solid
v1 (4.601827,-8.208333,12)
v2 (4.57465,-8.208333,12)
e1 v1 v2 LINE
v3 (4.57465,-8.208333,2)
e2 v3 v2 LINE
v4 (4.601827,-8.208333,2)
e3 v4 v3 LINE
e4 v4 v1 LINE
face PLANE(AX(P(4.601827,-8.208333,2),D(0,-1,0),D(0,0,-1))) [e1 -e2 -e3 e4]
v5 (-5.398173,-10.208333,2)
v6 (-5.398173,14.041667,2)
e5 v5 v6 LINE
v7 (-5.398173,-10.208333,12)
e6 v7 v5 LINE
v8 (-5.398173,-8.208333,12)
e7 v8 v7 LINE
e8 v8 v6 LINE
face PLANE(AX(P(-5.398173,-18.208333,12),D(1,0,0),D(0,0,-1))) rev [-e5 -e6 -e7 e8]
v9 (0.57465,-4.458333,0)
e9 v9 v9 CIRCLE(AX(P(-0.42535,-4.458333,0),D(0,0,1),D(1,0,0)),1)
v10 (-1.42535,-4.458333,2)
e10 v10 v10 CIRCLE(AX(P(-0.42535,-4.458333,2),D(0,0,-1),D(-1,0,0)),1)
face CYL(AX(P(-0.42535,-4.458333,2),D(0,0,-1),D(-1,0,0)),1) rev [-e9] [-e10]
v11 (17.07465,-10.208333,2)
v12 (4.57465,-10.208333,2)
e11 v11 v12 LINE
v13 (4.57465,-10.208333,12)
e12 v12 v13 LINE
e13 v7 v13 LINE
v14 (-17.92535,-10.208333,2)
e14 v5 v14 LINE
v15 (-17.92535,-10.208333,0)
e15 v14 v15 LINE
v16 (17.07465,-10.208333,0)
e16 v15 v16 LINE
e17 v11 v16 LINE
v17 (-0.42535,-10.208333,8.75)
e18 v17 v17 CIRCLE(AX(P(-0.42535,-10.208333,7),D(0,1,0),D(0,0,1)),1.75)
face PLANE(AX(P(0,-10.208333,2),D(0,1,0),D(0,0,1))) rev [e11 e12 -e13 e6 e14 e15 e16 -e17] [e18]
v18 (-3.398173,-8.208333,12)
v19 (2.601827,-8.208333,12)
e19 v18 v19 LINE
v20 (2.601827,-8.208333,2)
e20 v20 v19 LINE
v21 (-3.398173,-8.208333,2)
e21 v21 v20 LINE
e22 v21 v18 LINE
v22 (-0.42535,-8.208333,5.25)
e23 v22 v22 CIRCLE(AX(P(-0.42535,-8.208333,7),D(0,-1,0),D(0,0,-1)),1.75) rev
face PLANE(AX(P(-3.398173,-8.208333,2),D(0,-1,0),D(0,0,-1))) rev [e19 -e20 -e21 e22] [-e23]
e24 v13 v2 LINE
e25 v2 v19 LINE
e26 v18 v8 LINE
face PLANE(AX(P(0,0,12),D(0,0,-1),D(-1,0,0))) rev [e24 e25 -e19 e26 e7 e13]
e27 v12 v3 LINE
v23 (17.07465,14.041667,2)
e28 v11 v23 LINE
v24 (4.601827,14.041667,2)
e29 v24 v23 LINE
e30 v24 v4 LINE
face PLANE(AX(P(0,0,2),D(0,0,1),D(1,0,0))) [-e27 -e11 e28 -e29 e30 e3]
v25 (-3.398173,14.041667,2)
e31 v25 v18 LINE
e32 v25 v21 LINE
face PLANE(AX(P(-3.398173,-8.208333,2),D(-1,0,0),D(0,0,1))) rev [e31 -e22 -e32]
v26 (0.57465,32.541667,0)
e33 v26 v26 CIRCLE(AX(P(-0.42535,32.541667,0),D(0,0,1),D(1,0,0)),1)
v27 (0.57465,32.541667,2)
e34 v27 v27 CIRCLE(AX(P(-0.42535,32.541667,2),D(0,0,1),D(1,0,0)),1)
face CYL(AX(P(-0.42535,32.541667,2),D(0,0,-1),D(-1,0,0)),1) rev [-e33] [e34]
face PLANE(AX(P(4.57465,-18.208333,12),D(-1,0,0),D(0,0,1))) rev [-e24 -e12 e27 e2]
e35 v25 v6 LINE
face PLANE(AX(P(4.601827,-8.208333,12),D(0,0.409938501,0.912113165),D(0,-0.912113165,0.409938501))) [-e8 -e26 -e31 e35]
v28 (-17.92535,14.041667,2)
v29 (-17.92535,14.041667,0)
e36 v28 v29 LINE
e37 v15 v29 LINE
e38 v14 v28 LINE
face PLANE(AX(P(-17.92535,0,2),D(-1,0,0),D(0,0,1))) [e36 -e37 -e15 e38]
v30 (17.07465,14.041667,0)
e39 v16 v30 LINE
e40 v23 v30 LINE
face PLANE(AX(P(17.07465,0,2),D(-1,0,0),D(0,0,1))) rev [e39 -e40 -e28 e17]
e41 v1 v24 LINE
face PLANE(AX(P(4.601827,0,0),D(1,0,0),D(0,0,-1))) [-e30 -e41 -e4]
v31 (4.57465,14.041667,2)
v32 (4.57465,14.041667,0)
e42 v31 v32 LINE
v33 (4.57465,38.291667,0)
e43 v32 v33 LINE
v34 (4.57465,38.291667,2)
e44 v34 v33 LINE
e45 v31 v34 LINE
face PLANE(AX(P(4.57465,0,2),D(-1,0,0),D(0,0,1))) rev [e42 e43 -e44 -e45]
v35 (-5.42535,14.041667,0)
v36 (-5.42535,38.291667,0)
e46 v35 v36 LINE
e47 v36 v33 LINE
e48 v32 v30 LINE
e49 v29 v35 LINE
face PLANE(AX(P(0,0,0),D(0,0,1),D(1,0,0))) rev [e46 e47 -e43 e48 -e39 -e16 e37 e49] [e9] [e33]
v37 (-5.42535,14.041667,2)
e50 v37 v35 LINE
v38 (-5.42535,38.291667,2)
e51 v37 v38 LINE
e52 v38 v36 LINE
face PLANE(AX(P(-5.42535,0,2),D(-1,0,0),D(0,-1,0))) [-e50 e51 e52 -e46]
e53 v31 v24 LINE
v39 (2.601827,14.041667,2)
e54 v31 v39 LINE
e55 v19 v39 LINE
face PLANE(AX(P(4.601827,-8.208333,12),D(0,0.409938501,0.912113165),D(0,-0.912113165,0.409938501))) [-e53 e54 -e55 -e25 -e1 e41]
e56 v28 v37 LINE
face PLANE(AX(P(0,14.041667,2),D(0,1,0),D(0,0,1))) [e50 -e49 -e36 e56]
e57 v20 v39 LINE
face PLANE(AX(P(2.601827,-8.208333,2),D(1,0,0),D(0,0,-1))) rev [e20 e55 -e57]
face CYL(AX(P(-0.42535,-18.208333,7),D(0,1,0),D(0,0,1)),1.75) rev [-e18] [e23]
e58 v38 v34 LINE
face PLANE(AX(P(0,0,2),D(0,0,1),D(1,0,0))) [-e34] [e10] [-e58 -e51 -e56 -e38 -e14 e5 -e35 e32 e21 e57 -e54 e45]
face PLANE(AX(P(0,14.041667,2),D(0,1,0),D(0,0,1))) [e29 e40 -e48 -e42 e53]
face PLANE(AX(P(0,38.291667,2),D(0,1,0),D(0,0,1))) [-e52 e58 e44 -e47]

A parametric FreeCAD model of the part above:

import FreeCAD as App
import Part
import Sketcher

V = App.Vector
Q = App.Units.Quantity


def add_polygon(sketch, points):
    """Adds a closed chain of lines whose ends are joined by coincident constraints."""
    first, n = sketch.GeometryCount, len(points)
    for a, b in zip(points, points[1:] + points[:1]):
        sketch.addGeometry(Part.LineSegment(App.Vector(*a, 0), App.Vector(*b, 0)), False)
    for i in range(n):
        sketch.addConstraint(Sketcher.Constraint("Coincident", first + i, 2, first + (i + 1) % n, 1))

doc = App.newDocument("Part")
body = doc.addObject("PartDesign::Body", "Body")

# Sketch on XY plane
sketch1 = body.newObject("Sketcher::SketchObject", "Sketch")
sketch1.AttachmentSupport = (doc.getObject("XY_Plane"), [""])
sketch1.MapMode = "FlatFace"
add_polygon(sketch1, [(-5.42535, 14.041667), (-17.92535, 14.041667), (-17.92535, -10.208333), (17.07465, -10.208333), (17.07465, 14.041667), (4.57465, 14.041667), (4.57465, 38.291667), (-5.42535, 38.291667)])  # lines 0-7
sketch1.addGeometry(Part.Circle(V(-0.42535, -4.458333, 0), V(0, 0, 1), 1), False)  # 8
sketch1.addGeometry(Part.Circle(V(-0.42535, 32.541667, 0), V(0, 0, 1), 1), False)  # 9
sketch1.addConstraint([
    Sketcher.Constraint("Horizontal", 0),
    Sketcher.Constraint("Vertical", 1),
    Sketcher.Constraint("Horizontal", 2),
    Sketcher.Constraint("Vertical", 3),
    Sketcher.Constraint("Horizontal", 4),
    Sketcher.Constraint("Vertical", 5),
    Sketcher.Constraint("Horizontal", 6),
    Sketcher.Constraint("Vertical", 7),
    Sketcher.Constraint("Equal", 8, 9),
    Sketcher.Constraint("Horizontal", 0, 2, 3, 2),
    Sketcher.Constraint("Vertical", 8, 3, 9, 3),
    Sketcher.Constraint("Equal", 0, 4),
    Sketcher.Constraint("Equal", 3, 5),
    Sketcher.Constraint("Diameter", 8, Q("2 mm")),
    Sketcher.Constraint("DistanceX", 2, 1, 2, 2, Q("35 mm")),
    Sketcher.Constraint("DistanceX", 6, 2, 6, 1, Q("10 mm")),
    Sketcher.Constraint("DistanceY", 8, 3, 9, 3, Q("37 mm")),
    Sketcher.Constraint("DistanceX", 8, 3, 4, 2, Q("5 mm")),
    Sketcher.Constraint("DistanceY", 1, 2, 1, 1, Q("24.25 mm")),
    Sketcher.Constraint("DistanceY", 8, 3, 0, 2, Q("18.5 mm")),
    Sketcher.Constraint("DistanceX", 8, 3, -1, 1, Q("0.42535 mm")),
    Sketcher.Constraint("DistanceY", 8, 3, -1, 1, Q("4.458333 mm")),
])
pad1 = body.newObject("PartDesign::Pad", "Pad")
pad1.Profile = sketch1
pad1.Length = 2

# Sketch on XY plane
sketch2 = body.newObject("Sketcher::SketchObject", "Sketch001")
sketch2.AttachmentSupport = (doc.getObject("XY_Plane"), [""])
sketch2.MapMode = "FlatFace"
sketch2.AttachmentOffset = App.Placement(V(0, 0, 2), App.Rotation())
add_polygon(sketch2, [(-17.92535, -8.208333), (-17.92535, -10.208333), (17.07465, -10.208333), (17.07465, -8.208333)])  # lines 0-3
sketch2.addConstraint([
    Sketcher.Constraint("Vertical", 0),
    Sketcher.Constraint("Horizontal", 1),
    Sketcher.Constraint("Vertical", 2),
    Sketcher.Constraint("Horizontal", 3),
    Sketcher.Constraint("DistanceX", 1, 1, 1, 2, Q("35 mm")),
    Sketcher.Constraint("DistanceY", 0, 2, 0, 1, Q("2 mm")),
    Sketcher.Constraint("DistanceX", 0, 2, -1, 1, Q("17.92535 mm")),
    Sketcher.Constraint("DistanceY", 0, 2, -1, 1, Q("10.208333 mm")),
])
pad2 = body.newObject("PartDesign::Pad", "Pad001")
pad2.Profile = sketch2
pad2.Length = 10

# Sketch on XZ plane
sketch3 = body.newObject("Sketcher::SketchObject", "Sketch002")
sketch3.AttachmentSupport = (doc.getObject("XZ_Plane"), [""])
sketch3.MapMode = "FlatFace"
sketch3.AttachmentOffset = App.Placement(V(0, 0, 8.208333), App.Rotation())
sketch3.addGeometry(Part.Circle(V(-0.42535, 7, 0), V(0, 0, 1), 1.75), False)
sketch3.addConstraint([
    Sketcher.Constraint("Diameter", 0, Q("3.5 mm")),
    Sketcher.Constraint("DistanceY", -1, 1, 0, 3, Q("7 mm")),
    Sketcher.Constraint("DistanceX", 0, 3, -1, 1, Q("0.42535 mm")),
])
pocket1 = body.newObject("PartDesign::Pocket", "Pocket")
pocket1.Profile = sketch3
pocket1.Length = 10
pocket1.Reversed = True

# Sketch on XZ plane
sketch4 = body.newObject("Sketcher::SketchObject", "Sketch003")
sketch4.AttachmentSupport = (doc.getObject("XZ_Plane"), [""])
sketch4.MapMode = "FlatFace"
sketch4.AttachmentOffset = App.Placement(V(0, 0, 8.208333), App.Rotation())
add_polygon(sketch4, [(-17.92535, 2), (-17.92535, 12), (-5.398173, 12), (-5.398173, 2)])  # lines 0-3
add_polygon(sketch4, [(4.57465, 2), (4.57465, 12), (17.07465, 12), (17.07465, 2)])  # lines 4-7
sketch4.addConstraint([
    Sketcher.Constraint("Vertical", 0),
    Sketcher.Constraint("Horizontal", 1),
    Sketcher.Constraint("Vertical", 2),
    Sketcher.Constraint("Horizontal", 3),
    Sketcher.Constraint("Vertical", 4),
    Sketcher.Constraint("Horizontal", 5),
    Sketcher.Constraint("Vertical", 6),
    Sketcher.Constraint("Horizontal", 7),
    Sketcher.Constraint("Horizontal", 1, 2, 4, 2),
    Sketcher.Constraint("Horizontal", 3, 2, 6, 2),
    Sketcher.Constraint("DistanceY", 0, 1, 0, 2, Q("10 mm")),
    Sketcher.Constraint("DistanceX", 5, 1, 5, 2, Q("12.5 mm")),
    Sketcher.Constraint("DistanceY", -1, 1, 0, 2, Q("12 mm")),
    Sketcher.Constraint("DistanceX", 0, 2, 5, 2, Q("35 mm")),
    Sketcher.Constraint("DistanceX", 1, 1, 1, 2, Q("12.527177 mm")),
    Sketcher.Constraint("DistanceX", 0, 2, -1, 1, Q("17.92535 mm")),
])
pocket2 = body.newObject("PartDesign::Pocket", "Pocket001")
pocket2.Profile = sketch4
pocket2.Length = 10
pocket2.Reversed = True

# Sketch on YZ plane
sketch5 = body.newObject("Sketcher::SketchObject", "Sketch004")
sketch5.AttachmentSupport = (doc.getObject("YZ_Plane"), [""])
sketch5.MapMode = "FlatFace"
sketch5.AttachmentOffset = App.Placement(V(0, 0, -5.398173), App.Rotation())
add_polygon(sketch5, [(-8.208333, 12), (14.041667, 2), (-8.208333, 2)])  # lines 0-2
sketch5.addConstraint([
    Sketcher.Constraint("Horizontal", 1),
    Sketcher.Constraint("Vertical", 2),
    Sketcher.Constraint("DistanceY", 2, 1, 2, 2, Q("10 mm")),
    Sketcher.Constraint("DistanceY", -1, 1, 0, 2, Q("2 mm")),
    Sketcher.Constraint("DistanceX", 1, 2, 1, 1, Q("22.25 mm")),
    Sketcher.Constraint("DistanceX", -1, 1, 0, 2, Q("14.041667 mm")),
])
pad3 = body.newObject("PartDesign::Pad", "Pad002")
pad3.Profile = sketch5
pad3.Length = 10

# Sketch on XY plane
sketch6 = body.newObject("Sketcher::SketchObject", "Sketch005")
sketch6.AttachmentSupport = (doc.getObject("XY_Plane"), [""])
sketch6.MapMode = "FlatFace"
sketch6.AttachmentOffset = App.Placement(V(0, 0, 12), App.Rotation())
add_polygon(sketch6, [(-3.398173, 14.041667), (-3.398173, -8.208333), (2.601827, -8.208333), (2.601827, 14.041667)])  # lines 0-3
sketch6.addConstraint([
    Sketcher.Constraint("Vertical", 0),
    Sketcher.Constraint("Horizontal", 1),
    Sketcher.Constraint("Vertical", 2),
    Sketcher.Constraint("Horizontal", 3),
    Sketcher.Constraint("DistanceX", 1, 1, 1, 2, Q("6 mm")),
    Sketcher.Constraint("DistanceY", 0, 2, 0, 1, Q("22.25 mm")),
    Sketcher.Constraint("DistanceX", 0, 2, -1, 1, Q("3.398173 mm")),
    Sketcher.Constraint("DistanceY", 0, 2, -1, 1, Q("8.208333 mm")),
])
pocket3 = body.newObject("PartDesign::Pocket", "Pocket002")
pocket3.Profile = sketch6
pocket3.Length = 10

doc.recompute()
